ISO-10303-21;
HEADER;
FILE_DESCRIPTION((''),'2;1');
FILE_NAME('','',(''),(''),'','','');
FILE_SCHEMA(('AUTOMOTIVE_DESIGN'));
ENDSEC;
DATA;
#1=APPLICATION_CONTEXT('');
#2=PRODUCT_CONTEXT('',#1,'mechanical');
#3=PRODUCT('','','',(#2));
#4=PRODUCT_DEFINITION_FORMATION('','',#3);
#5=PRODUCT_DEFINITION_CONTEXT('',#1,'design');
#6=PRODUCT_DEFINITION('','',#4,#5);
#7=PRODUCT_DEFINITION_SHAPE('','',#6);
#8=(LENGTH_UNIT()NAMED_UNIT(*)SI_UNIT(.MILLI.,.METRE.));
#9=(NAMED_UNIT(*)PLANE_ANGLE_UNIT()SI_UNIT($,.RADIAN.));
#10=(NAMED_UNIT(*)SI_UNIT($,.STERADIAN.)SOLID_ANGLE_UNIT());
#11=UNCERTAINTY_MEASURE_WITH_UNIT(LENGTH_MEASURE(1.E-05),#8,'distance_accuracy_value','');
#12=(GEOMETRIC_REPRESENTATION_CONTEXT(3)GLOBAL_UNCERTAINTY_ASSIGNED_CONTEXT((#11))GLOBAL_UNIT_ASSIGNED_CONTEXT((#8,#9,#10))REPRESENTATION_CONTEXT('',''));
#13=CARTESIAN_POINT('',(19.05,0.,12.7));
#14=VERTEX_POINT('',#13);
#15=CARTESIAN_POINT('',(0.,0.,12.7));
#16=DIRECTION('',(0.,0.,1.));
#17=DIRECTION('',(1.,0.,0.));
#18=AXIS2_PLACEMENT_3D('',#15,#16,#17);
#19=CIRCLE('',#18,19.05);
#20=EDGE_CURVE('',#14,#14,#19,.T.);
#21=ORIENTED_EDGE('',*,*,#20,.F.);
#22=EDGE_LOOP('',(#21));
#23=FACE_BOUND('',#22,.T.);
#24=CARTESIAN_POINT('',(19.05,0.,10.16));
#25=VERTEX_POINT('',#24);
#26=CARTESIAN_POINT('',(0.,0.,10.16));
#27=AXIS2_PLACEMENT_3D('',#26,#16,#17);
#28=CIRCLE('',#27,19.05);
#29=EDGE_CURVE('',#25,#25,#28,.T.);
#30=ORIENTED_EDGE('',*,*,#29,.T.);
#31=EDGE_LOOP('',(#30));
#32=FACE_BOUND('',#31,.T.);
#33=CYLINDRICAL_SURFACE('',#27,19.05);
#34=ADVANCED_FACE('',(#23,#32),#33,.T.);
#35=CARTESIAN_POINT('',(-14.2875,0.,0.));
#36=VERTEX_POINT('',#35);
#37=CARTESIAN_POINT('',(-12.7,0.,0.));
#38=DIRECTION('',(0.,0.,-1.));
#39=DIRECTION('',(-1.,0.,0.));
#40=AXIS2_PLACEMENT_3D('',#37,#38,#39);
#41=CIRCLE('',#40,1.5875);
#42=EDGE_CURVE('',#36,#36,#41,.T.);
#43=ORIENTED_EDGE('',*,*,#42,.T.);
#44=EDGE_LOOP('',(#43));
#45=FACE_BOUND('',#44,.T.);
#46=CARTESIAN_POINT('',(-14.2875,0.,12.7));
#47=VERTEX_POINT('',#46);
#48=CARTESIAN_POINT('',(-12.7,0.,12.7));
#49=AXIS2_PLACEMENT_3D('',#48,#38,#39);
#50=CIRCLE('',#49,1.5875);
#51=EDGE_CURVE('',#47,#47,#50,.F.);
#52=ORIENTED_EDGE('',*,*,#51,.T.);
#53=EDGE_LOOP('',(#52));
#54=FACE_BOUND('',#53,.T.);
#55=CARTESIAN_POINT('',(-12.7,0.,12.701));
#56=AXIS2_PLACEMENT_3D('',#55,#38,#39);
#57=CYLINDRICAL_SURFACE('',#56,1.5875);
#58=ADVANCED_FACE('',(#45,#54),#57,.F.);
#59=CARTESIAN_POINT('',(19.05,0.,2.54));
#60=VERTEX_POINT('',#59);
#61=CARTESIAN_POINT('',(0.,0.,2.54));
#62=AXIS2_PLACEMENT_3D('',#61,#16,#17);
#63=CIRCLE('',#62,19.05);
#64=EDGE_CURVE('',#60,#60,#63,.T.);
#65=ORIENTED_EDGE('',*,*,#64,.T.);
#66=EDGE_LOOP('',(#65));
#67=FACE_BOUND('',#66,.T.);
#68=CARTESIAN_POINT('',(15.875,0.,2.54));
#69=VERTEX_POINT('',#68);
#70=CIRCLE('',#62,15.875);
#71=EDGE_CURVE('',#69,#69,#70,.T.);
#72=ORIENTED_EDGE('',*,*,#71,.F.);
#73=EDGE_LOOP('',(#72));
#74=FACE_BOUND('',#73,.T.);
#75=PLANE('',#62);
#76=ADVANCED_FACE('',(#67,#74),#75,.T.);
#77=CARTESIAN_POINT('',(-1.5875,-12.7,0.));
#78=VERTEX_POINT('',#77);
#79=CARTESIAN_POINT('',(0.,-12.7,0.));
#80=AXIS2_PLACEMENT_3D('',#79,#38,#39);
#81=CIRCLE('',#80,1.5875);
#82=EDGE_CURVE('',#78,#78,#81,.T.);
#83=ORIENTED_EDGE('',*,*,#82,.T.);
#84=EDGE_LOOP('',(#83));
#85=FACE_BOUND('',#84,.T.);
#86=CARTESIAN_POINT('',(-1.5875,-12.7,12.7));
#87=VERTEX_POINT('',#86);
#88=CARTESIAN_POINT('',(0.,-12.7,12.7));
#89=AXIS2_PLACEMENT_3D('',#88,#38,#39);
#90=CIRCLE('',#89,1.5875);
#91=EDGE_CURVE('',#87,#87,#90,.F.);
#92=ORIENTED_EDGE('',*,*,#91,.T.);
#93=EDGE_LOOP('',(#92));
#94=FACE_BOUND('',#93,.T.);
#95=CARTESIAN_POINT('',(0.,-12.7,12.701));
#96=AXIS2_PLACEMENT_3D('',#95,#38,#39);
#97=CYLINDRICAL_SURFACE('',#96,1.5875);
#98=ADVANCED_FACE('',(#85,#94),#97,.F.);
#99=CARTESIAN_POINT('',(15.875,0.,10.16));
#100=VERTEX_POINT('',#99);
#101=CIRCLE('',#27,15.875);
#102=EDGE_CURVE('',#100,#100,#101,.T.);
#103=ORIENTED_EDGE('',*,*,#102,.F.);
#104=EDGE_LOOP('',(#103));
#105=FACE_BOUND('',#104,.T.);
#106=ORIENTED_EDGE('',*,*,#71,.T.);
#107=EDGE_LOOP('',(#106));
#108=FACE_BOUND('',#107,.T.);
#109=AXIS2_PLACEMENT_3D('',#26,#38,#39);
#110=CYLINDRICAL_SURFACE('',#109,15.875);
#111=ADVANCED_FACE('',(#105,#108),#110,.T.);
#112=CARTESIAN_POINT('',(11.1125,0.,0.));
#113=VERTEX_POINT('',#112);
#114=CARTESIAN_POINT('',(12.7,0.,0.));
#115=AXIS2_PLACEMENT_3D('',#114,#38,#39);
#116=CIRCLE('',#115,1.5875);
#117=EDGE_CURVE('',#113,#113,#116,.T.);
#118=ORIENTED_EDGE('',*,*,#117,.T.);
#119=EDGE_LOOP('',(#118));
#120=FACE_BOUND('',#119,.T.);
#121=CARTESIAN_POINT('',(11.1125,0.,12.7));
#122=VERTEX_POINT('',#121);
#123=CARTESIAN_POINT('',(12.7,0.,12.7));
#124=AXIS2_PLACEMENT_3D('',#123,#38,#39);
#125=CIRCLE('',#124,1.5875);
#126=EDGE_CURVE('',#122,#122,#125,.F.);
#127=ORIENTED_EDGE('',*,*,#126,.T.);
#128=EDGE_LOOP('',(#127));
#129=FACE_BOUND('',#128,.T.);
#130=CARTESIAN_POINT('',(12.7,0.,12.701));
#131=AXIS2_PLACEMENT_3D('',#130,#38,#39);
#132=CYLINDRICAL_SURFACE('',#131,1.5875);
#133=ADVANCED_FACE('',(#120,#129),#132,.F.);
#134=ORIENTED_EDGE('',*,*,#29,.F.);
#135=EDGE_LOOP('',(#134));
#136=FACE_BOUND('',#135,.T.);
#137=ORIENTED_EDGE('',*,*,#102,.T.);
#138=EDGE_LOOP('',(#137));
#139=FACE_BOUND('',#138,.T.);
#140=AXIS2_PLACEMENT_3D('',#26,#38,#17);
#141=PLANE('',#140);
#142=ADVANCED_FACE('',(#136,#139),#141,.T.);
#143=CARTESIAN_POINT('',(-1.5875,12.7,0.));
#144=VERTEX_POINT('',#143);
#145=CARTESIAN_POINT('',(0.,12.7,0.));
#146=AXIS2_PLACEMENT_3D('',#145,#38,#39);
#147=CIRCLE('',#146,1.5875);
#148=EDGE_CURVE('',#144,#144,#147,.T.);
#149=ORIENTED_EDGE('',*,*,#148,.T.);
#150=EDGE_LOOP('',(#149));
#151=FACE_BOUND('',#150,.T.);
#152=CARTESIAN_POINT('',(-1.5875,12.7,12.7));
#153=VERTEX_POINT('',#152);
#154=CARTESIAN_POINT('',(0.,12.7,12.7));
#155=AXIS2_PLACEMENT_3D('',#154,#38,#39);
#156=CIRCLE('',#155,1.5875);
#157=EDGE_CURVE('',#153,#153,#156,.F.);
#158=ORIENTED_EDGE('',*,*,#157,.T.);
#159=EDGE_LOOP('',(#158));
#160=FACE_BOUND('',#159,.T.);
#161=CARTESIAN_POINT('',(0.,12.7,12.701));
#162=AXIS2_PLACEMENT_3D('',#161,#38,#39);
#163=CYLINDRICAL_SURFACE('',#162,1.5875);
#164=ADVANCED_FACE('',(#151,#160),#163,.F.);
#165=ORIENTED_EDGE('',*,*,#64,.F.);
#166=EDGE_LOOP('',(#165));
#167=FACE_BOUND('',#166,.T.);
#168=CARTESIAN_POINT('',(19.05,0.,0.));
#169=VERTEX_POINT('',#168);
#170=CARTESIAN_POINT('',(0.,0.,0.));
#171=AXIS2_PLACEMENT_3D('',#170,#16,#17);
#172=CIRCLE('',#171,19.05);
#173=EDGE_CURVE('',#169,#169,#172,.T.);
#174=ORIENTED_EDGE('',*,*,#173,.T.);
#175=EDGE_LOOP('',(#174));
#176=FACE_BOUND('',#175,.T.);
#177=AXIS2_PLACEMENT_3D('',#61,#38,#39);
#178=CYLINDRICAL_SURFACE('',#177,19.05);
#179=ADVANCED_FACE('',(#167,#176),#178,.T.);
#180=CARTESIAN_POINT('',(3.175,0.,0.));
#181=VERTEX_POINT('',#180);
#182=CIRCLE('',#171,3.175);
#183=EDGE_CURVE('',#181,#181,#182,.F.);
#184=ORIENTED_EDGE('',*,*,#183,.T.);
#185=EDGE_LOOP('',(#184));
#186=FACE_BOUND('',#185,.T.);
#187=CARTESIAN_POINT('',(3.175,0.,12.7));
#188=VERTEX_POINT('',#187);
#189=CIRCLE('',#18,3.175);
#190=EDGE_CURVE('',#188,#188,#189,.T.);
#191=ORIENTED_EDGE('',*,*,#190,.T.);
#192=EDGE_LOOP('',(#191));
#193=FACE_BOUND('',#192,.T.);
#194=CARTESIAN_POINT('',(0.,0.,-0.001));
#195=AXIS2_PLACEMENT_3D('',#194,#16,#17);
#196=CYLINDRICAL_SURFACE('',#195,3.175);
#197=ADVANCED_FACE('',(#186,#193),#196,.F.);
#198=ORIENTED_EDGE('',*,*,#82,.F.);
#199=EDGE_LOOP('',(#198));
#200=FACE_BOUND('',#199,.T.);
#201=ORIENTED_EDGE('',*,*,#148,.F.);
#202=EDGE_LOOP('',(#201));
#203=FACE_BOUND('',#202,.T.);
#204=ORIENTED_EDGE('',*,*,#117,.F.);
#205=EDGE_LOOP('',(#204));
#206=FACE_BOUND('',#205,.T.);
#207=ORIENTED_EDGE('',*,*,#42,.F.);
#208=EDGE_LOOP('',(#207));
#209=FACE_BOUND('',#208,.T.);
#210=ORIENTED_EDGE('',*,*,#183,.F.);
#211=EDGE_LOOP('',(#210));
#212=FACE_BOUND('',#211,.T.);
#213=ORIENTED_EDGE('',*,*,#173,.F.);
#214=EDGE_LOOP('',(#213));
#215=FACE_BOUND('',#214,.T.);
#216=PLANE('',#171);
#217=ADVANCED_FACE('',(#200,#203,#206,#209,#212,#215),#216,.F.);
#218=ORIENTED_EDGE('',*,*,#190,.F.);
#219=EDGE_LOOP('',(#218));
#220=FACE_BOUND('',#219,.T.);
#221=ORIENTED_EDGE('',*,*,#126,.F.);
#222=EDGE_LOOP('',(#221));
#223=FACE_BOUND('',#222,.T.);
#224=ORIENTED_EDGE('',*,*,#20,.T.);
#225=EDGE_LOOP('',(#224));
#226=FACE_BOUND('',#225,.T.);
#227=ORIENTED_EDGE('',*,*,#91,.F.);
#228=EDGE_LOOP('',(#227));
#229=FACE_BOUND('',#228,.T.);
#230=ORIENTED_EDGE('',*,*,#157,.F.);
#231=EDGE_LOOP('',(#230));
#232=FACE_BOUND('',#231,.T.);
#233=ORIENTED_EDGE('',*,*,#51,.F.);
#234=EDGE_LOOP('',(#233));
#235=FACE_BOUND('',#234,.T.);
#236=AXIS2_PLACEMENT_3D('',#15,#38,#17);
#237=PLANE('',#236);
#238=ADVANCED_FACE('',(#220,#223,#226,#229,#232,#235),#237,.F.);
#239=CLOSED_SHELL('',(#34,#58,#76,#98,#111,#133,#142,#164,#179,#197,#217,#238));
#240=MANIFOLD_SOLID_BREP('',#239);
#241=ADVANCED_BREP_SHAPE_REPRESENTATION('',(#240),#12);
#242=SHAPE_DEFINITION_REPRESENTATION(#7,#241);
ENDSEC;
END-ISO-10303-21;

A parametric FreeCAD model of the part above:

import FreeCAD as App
import Part
import Sketcher

V = App.Vector
Q = App.Units.Quantity

doc = App.newDocument("Part")
body = doc.addObject("PartDesign::Body", "Body")

# Sketch on XY plane
sketch1 = body.newObject("Sketcher::SketchObject", "Sketch")
sketch1.AttachmentSupport = (doc.getObject("XY_Plane"), [""])
sketch1.MapMode = "FlatFace"
sketch1.addGeometry(Part.Circle(V(0, 0, 0), V(0, 0, 1), 19), False)
sketch1.addConstraint(Sketcher.Constraint("Coincident", 0, 3, -1, 1))
sketch1.addConstraint(Sketcher.Constraint("Diameter", 0, Q("1.5 in")))
pad1 = body.newObject("PartDesign::Pad", "Pad")
pad1.Profile = sketch1
pad1.Length = Q("0.1 in")

# Sketch on XY plane
sketch2 = body.newObject("Sketcher::SketchObject", "Sketch001")
sketch2.AttachmentSupport = (doc.getObject("XY_Plane"), [""])
sketch2.MapMode = "FlatFace"
sketch2.AttachmentOffset = App.Placement(V(0, 0, 0.1 * 25.4), App.Rotation())
sketch2.addGeometry(Part.Circle(V(0, 0, 0), V(0, 0, 1), 16), False)
sketch2.addConstraint(Sketcher.Constraint("Coincident", 0, 3, -1, 1))
sketch2.addConstraint(Sketcher.Constraint("Diameter", 0, Q("1.25 in")))
pad2 = body.newObject("PartDesign::Pad", "Pad001")
pad2.Profile = sketch2
pad2.Length = Q("0.3 in")
doc.recompute()

datumplane = body.newObject("PartDesign::Plane", "DatumPlane")
datumplane.AttachmentSupport = (doc.getObject("XY_Plane"), [""])
datumplane.MapMode = "FlatFace"
datumplane.AttachmentOffset = App.Placement(V(0, 0, 0.25 * 25.4), App.Rotation())
mirrored = body.newObject("PartDesign::Mirrored", "Mirrored")
mirrored.Originals = [pad1]
mirrored.MirrorPlane = (datumplane, [""])
body.Tip = mirrored

# Sketch on XY plane
sketch3 = body.newObject("Sketcher::SketchObject", "Sketch002")
sketch3.AttachmentSupport = (doc.getObject("XY_Plane"), [""])
sketch3.MapMode = "FlatFace"
sketch3.AttachmentOffset = App.Placement(V(0, 0, 0.5 * 25.4), App.Rotation())
sketch3.addGeometry(Part.Circle(V(0, 0, 0), V(0, 0, 1), 3.2), False)
sketch3.addConstraint(Sketcher.Constraint("Coincident", 0, 3, -1, 1))
sketch3.addConstraint(Sketcher.Constraint("Diameter", 0, Q("0.25 in")))
pocket1 = body.newObject("PartDesign::Pocket", "Pocket")
pocket1.Profile = sketch3
pocket1.Type = "UpToFirst"

# Sketch on XY plane
sketch4 = body.newObject("Sketcher::SketchObject", "Sketch003")
sketch4.AttachmentSupport = (doc.getObject("XY_Plane"), [""])
sketch4.MapMode = "FlatFace"
sketch4.addGeometry(Part.Circle(V(0, 12.7, 0), V(0, 0, 1), 1.6), False)
sketch4.addConstraint(Sketcher.Constraint("PointOnObject", 0, 3, -2))
sketch4.addConstraint(Sketcher.Constraint("Diameter", 0, Q("0.125 in")))
sketch4.addConstraint(Sketcher.Constraint("DistanceY", -1, 1, 0, 3, Q("0.5 in")))
pocket2 = body.newObject("PartDesign::Pocket", "Pocket001")
pocket2.Profile = sketch4
pocket2.Type = "UpToFirst"
pocket2.Reversed = True

# Sketch on XY plane
sketch5 = body.newObject("Sketcher::SketchObject", "Sketch004")
sketch5.AttachmentSupport = (doc.getObject("XY_Plane"), [""])
sketch5.MapMode = "FlatFace"
sketch5.addGeometry(Part.Circle(V(-12.7, 0, 0), V(0, 0, 1), 1.6), False)
sketch5.addConstraint(Sketcher.Constraint("PointOnObject", 0, 3, -1))
sketch5.addConstraint(Sketcher.Constraint("Diameter", 0, Q("0.125 in")))
sketch5.addConstraint(Sketcher.Constraint("DistanceX", 0, 3, -1, 1, Q("0.5 in")))
pocket3 = body.newObject("PartDesign::Pocket", "Pocket002")
pocket3.Profile = sketch5
pocket3.Type = "UpToFirst"
pocket3.Reversed = True

# Sketch on XY plane
sketch6 = body.newObject("Sketcher::SketchObject", "Sketch005")
sketch6.AttachmentSupport = (doc.getObject("XY_Plane"), [""])
sketch6.MapMode = "FlatFace"
sketch6.addGeometry(Part.Circle(V(0, -12.7, 0), V(0, 0, 1), 1.6), False)
sketch6.addConstraint(Sketcher.Constraint("PointOnObject", 0, 3, -2))
sketch6.addConstraint(Sketcher.Constraint("Diameter", 0, Q("0.125 in")))
sketch6.addConstraint(Sketcher.Constraint("DistanceY", 0, 3, -1, 1, Q("0.5 in")))
pocket4 = body.newObject("PartDesign::Pocket", "Pocket003")
pocket4.Profile = sketch6
pocket4.Type = "UpToFirst"
pocket4.Reversed = True

# Sketch on XY plane
sketch7 = body.newObject("Sketcher::SketchObject", "Sketch006")
sketch7.AttachmentSupport = (doc.getObject("XY_Plane"), [""])
sketch7.MapMode = "FlatFace"
sketch7.addGeometry(Part.Circle(V(12.7, 0, 0), V(0, 0, 1), 1.6), False)
sketch7.addConstraint(Sketcher.Constraint("PointOnObject", 0, 3, -1))
sketch7.addConstraint(Sketcher.Constraint("Diameter", 0, Q("0.125 in")))
sketch7.addConstraint(Sketcher.Constraint("DistanceX", -1, 1, 0, 3, Q("0.5 in")))
pocket5 = body.newObject("PartDesign::Pocket", "Pocket004")
pocket5.Profile = sketch7
pocket5.Type = "UpToFirst"
pocket5.Reversed = True

doc.recompute()
